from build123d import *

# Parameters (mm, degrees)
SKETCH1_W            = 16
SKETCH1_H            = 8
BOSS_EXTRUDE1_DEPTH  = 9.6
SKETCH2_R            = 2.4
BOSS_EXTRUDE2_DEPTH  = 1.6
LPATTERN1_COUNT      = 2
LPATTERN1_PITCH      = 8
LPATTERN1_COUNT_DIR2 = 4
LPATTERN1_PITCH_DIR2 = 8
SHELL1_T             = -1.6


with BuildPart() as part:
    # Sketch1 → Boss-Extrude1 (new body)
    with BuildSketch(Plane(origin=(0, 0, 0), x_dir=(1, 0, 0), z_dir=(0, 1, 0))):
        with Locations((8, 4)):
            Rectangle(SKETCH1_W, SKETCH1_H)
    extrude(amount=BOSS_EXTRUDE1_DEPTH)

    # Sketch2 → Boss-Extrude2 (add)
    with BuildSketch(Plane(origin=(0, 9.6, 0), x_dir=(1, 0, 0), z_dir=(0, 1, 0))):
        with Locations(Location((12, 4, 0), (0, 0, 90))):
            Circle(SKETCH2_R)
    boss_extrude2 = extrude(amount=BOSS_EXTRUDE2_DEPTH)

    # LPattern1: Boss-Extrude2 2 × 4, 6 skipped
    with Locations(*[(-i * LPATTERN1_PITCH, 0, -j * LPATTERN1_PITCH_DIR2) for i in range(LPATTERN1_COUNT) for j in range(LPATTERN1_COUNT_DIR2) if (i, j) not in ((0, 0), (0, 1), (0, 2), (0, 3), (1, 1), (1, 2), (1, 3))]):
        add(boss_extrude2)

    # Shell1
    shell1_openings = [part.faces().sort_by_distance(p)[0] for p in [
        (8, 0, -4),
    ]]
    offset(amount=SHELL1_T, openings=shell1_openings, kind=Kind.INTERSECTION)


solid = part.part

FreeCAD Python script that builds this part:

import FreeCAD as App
import Part
import Sketcher
from FreeCAD import Vector
Q = App.Units.Quantity


def faces_at(feature, points):
    """Names of the faces that lie closest to the given points."""
    faces = feature.Shape.Faces
    near = lambda p: min(range(len(faces)), key=lambda i: faces[i].distToShape(Part.Vertex(*p))[0])
    return sorted({f"Face{near(p) + 1}" for p in points})


def add_polygon(sketch, points):
    """Adds a closed chain of lines whose ends are joined by coincident constraints."""
    first, n = sketch.GeometryCount, len(points)
    for a, b in zip(points, points[1:] + points[:1]):
        sketch.addGeometry(Part.LineSegment(App.Vector(*a, 0), App.Vector(*b, 0)), False)
    for i in range(n):
        sketch.addConstraint(Sketcher.Constraint("Coincident", first + i, 2, first + (i + 1) % n, 1))

doc = App.newDocument("Part")
params = doc.addObject("Spreadsheet::Sheet", "Params")
for row, (alias, value) in enumerate([
    ("sketch1_width", "16 mm"),
    ("sketch1_height", "8 mm"),
    ("pad1_length", "9.6 mm"),
    ("sketch2_diameter", "4.8 mm"),
    ("pad2_length", "1.6 mm"),
    ("linearpattern_pitch", "8 mm"),
    ("thickness_wall", "1.6 mm"),
], start=1):
    params.set(f"A{row}", alias)
    params.set(f"B{row}", "=" + value)
    params.setAlias(f"B{row}", alias)

body = doc.addObject("PartDesign::Body", "Body")

sketch1 = body.newObject("Sketcher::SketchObject", "Sketch")
sketch1.AttachmentSupport = (doc.getObject("XZ_Plane"), [""])
sketch1.MapMode = "FlatFace"
add_polygon(sketch1, [(0, -8), (0, 0), (16, 0), (16, -8)])
sketch1.addConstraint([
    Sketcher.Constraint("Vertical", 0),
    Sketcher.Constraint("Horizontal", 1),
    Sketcher.Constraint("Vertical", 2),
    Sketcher.Constraint("Horizontal", 3),
    Sketcher.Constraint("Coincident", 0, 2, -1, 1),
    Sketcher.Constraint("DistanceX", 1, 1, 1, 2, Q("16 mm")),
    Sketcher.Constraint("DistanceY", 0, 1, 0, 2, Q("8 mm")),
])
sketch1.setExpression("Constraints[9]", "Params.sketch1_width")
sketch1.setExpression("Constraints[10]", "Params.sketch1_height")
pad1 = body.newObject("PartDesign::Pad", "Pad")
pad1.Profile = sketch1
pad1.setExpression("Length", "Params.pad1_length")
pad1.Reversed = True

sketch2 = body.newObject("Sketcher::SketchObject", "Sketch001")
sketch2.AttachmentSupport = (doc.getObject("XZ_Plane"), [""])
sketch2.MapMode = "FlatFace"
sketch2.AttachmentOffset = App.Placement(Vector(0, 0, -9.6), App.Rotation())
sketch2.addGeometry(Part.Circle(Vector(12, -4, 0), Vector(0, 0, 1), 2.4), False)
sketch2.addConstraint([
    Sketcher.Constraint("Diameter", 0, Q("4.8 mm")),
    Sketcher.Constraint("DistanceX", -1, 1, 0, 3, Q("12 mm")),
    Sketcher.Constraint("DistanceY", 0, 3, -1, 1, Q("4 mm")),
])
sketch2.setExpression("Constraints[0]", "Params.sketch2_diameter")
pad2 = body.newObject("PartDesign::Pad", "Pad001")
pad2.Profile = sketch2
pad2.setExpression("Length", "Params.pad2_length")
pad2.Reversed = True
doc.recompute()

linearpattern = body.newObject("PartDesign::LinearPattern", "LinearPattern")
linearpattern.Originals = [pad2]
linearpattern.Direction = (doc.getObject("X_Axis"), [""])
linearpattern.Mode = "offset"
linearpattern.setExpression("Offset", "Params.linearpattern_pitch")
linearpattern.Occurrences = 2
linearpattern.Reversed = True
body.Tip = linearpattern
doc.recompute()

thickness = body.newObject("PartDesign::Thickness", "Thickness")
thickness.Base = (linearpattern, faces_at(linearpattern, [(8, 0, -4)]))
thickness.setExpression("Value", "Params.thickness_wall")
thickness.Reversed = True
thickness.Join = "Intersection"

doc.recompute()
